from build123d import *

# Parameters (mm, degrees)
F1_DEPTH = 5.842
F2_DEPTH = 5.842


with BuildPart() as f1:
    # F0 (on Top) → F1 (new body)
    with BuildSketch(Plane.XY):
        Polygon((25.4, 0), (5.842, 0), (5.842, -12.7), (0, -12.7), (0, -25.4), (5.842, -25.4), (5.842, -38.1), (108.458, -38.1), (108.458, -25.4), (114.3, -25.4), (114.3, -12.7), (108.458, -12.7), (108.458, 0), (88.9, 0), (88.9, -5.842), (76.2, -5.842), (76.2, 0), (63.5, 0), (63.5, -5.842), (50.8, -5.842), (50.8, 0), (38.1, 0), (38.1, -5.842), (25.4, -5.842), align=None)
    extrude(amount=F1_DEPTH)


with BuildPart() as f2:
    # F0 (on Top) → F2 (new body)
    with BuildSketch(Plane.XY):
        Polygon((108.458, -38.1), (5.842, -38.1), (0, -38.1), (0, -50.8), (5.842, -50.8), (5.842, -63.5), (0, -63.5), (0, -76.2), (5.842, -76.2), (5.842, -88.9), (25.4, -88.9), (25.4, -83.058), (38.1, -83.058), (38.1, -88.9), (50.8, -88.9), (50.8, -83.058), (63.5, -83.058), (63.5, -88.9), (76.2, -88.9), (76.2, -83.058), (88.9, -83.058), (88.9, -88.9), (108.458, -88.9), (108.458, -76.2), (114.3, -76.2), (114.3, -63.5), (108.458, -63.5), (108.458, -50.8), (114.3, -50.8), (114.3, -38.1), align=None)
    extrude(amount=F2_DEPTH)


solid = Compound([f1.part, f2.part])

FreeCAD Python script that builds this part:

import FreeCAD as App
import Part
import Sketcher

V = App.Vector
Q = App.Units.Quantity

doc = App.newDocument("Part")
body = doc.addObject("PartDesign::Body", "Body")

sketch1 = body.newObject("Sketcher::SketchObject", "Sketch")
sketch1.AttachmentSupport = (doc.getObject("XY_Plane"), [""])
sketch1.MapMode = "FlatFace"
sketch1.addGeometry([
    Part.LineSegment(V(25, 0, 0), V(6, 0, 0)),
    Part.LineSegment(V(6, 0, 0), V(6, -13, 0)),
    Part.LineSegment(V(6, -13, 0), V(0, -13, 0)),
    Part.LineSegment(V(0, -13, 0), V(0, -25, 0)),
    Part.LineSegment(V(0, -25, 0), V(6, -25, 0)),
    Part.LineSegment(V(6, -25, 0), V(6, -38, 0)),
    Part.LineSegment(V(6, -38, 0), V(108, -38, 0)),
    Part.LineSegment(V(108, -38, 0), V(108, -25, 0)),
    Part.LineSegment(V(108, -25, 0), V(114, -25, 0)),
    Part.LineSegment(V(114, -25, 0), V(114, -13, 0)),
    Part.LineSegment(V(114, -13, 0), V(108, -13, 0)),
    Part.LineSegment(V(108, -13, 0), V(108, 0, 0)),
    Part.LineSegment(V(108, 0, 0), V(89, 0, 0)),
    Part.LineSegment(V(89, 0, 0), V(89, -6, 0)),
    Part.LineSegment(V(89, -6, 0), V(76, -6, 0)),
    Part.LineSegment(V(76, -6, 0), V(76, 0, 0)),
    Part.LineSegment(V(76, 0, 0), V(64, 0, 0)),
    Part.LineSegment(V(64, 0, 0), V(64, -6, 0)),
    Part.LineSegment(V(64, -6, 0), V(51, -6, 0)),
    Part.LineSegment(V(51, -6, 0), V(51, 0, 0)),
    Part.LineSegment(V(51, 0, 0), V(38, 0, 0)),
    Part.LineSegment(V(38, 0, 0), V(38, -6, 0)),
    Part.LineSegment(V(38, -6, 0), V(25, -6, 0)),
    Part.LineSegment(V(25, -6, 0), V(25, 0, 0)),
], False)
sketch1.addConstraint([
    Sketcher.Constraint("Coincident", 0, 2, 1, 1),
    Sketcher.Constraint("Coincident", 1, 2, 2, 1),
    Sketcher.Constraint("Coincident", 2, 2, 3, 1),
    Sketcher.Constraint("Coincident", 3, 2, 4, 1),
    Sketcher.Constraint("Coincident", 4, 2, 5, 1),
    Sketcher.Constraint("Coincident", 5, 2, 6, 1),
    Sketcher.Constraint("Coincident", 6, 2, 7, 1),
    Sketcher.Constraint("Coincident", 7, 2, 8, 1),
    Sketcher.Constraint("Coincident", 8, 2, 9, 1),
    Sketcher.Constraint("Coincident", 9, 2, 10, 1),
    Sketcher.Constraint("Coincident", 10, 2, 11, 1),
    Sketcher.Constraint("Coincident", 11, 2, 12, 1),
    Sketcher.Constraint("Coincident", 12, 2, 13, 1),
    Sketcher.Constraint("Coincident", 13, 2, 14, 1),
    Sketcher.Constraint("Coincident", 14, 2, 15, 1),
    Sketcher.Constraint("Coincident", 15, 2, 16, 1),
    Sketcher.Constraint("Coincident", 16, 2, 17, 1),
    Sketcher.Constraint("Coincident", 17, 2, 18, 1),
    Sketcher.Constraint("Coincident", 18, 2, 19, 1),
    Sketcher.Constraint("Coincident", 19, 2, 20, 1),
    Sketcher.Constraint("Coincident", 20, 2, 21, 1),
    Sketcher.Constraint("Coincident", 21, 2, 22, 1),
    Sketcher.Constraint("Coincident", 22, 2, 23, 1),
    Sketcher.Constraint("Coincident", 23, 2, 0, 1),
    Sketcher.Constraint("Horizontal", 0),
    Sketcher.Constraint("Vertical", 1),
    Sketcher.Constraint("Horizontal", 2),
    Sketcher.Constraint("Vertical", 3),
    Sketcher.Constraint("Horizontal", 4),
    Sketcher.Constraint("Vertical", 5),
    Sketcher.Constraint("Horizontal", 6),
    Sketcher.Constraint("Vertical", 7),
    Sketcher.Constraint("Horizontal", 8),
    Sketcher.Constraint("Vertical", 9),
    Sketcher.Constraint("Horizontal", 10),
    Sketcher.Constraint("Vertical", 11),
    Sketcher.Constraint("Horizontal", 12),
    Sketcher.Constraint("Vertical", 13),
    Sketcher.Constraint("Horizontal", 14),
    Sketcher.Constraint("Vertical", 15),
    Sketcher.Constraint("Horizontal", 16),
    Sketcher.Constraint("Vertical", 17),
    Sketcher.Constraint("Horizontal", 18),
    Sketcher.Constraint("Vertical", 19),
    Sketcher.Constraint("Horizontal", 20),
    Sketcher.Constraint("Vertical", 21),
    Sketcher.Constraint("Horizontal", 22),
    Sketcher.Constraint("Vertical", 23),
    Sketcher.Constraint("PointOnObject", 0, 2, -1),
    Sketcher.Constraint("PointOnObject", 2, 2, -2),
    Sketcher.Constraint("PointOnObject", 11, 2, -1),
    Sketcher.Constraint("PointOnObject", 15, 2, -1),
    Sketcher.Constraint("PointOnObject", 19, 2, -1),
    Sketcher.Constraint("Horizontal", 4, 2, 7, 2),
    Sketcher.Constraint("Horizontal", 2, 2, 9, 2),
    Sketcher.Constraint("Horizontal", 14, 2, 17, 2),
    Sketcher.Constraint("Horizontal", 18, 2, 21, 2),
    Sketcher.Constraint("Vertical", 1, 2, 4, 2),
    Sketcher.Constraint("Vertical", 7, 2, 10, 2),
    Sketcher.Constraint("Equal", 4, 8),
    Sketcher.Constraint("Equal", 0, 12),
    Sketcher.Constraint("Equal", 14, 16),
    Sketcher.Constraint("Equal", 16, 18),
    Sketcher.Constraint("Equal", 18, 20),
    Sketcher.Constraint("Equal", 20, 22),
    Sketcher.Constraint("Equal", 22, 1),
    Sketcher.Constraint("Equal", 1, 3),
    Sketcher.Constraint("Equal", 3, 5),
    Sketcher.Constraint("Equal", 10, 13),
    Sketcher.Constraint("DistanceX", 14, 2, 14, 1, Q("0.5 in")),
    Sketcher.Constraint("DistanceX", -1, 1, 14, 2, Q("3 in")),
    Sketcher.Constraint("DistanceX", 0, 2, 0, 1, Q("0.77 in")),
])
pad1 = body.newObject("PartDesign::Pad", "Pad")
pad1.Profile = sketch1
pad1.Length = Q("0.23 in")
body2 = doc.addObject("PartDesign::Body", "Body001")

sketch2 = body2.newObject("Sketcher::SketchObject", "Sketch001")
sketch2.AttachmentSupport = (doc.getObject("XY_Plane001"), [""])
sketch2.MapMode = "FlatFace"
sketch2.addGeometry([
    Part.LineSegment(V(0, -38, 0), V(0, -51, 0)),
    Part.LineSegment(V(0, -51, 0), V(6, -51, 0)),
    Part.LineSegment(V(6, -51, 0), V(6, -64, 0)),
    Part.LineSegment(V(6, -64, 0), V(0, -64, 0)),
    Part.LineSegment(V(0, -64, 0), V(0, -76, 0)),
    Part.LineSegment(V(0, -76, 0), V(6, -76, 0)),
    Part.LineSegment(V(6, -76, 0), V(6, -89, 0)),
    Part.LineSegment(V(6, -89, 0), V(25, -89, 0)),
    Part.LineSegment(V(25, -89, 0), V(25, -83, 0)),
    Part.LineSegment(V(25, -83, 0), V(38, -83, 0)),
    Part.LineSegment(V(38, -83, 0), V(38, -89, 0)),
    Part.LineSegment(V(38, -89, 0), V(51, -89, 0)),
    Part.LineSegment(V(51, -89, 0), V(51, -83, 0)),
    Part.LineSegment(V(51, -83, 0), V(64, -83, 0)),
    Part.LineSegment(V(64, -83, 0), V(64, -89, 0)),
    Part.LineSegment(V(64, -89, 0), V(76, -89, 0)),
    Part.LineSegment(V(76, -89, 0), V(76, -83, 0)),
    Part.LineSegment(V(76, -83, 0), V(89, -83, 0)),
    Part.LineSegment(V(89, -83, 0), V(89, -89, 0)),
    Part.LineSegment(V(89, -89, 0), V(108, -89, 0)),
    Part.LineSegment(V(108, -89, 0), V(108, -76, 0)),
    Part.LineSegment(V(108, -76, 0), V(114, -76, 0)),
    Part.LineSegment(V(114, -76, 0), V(114, -64, 0)),
    Part.LineSegment(V(114, -64, 0), V(108, -64, 0)),
    Part.LineSegment(V(108, -64, 0), V(108, -51, 0)),
    Part.LineSegment(V(108, -51, 0), V(114, -51, 0)),
    Part.LineSegment(V(114, -51, 0), V(114, -38, 0)),
    Part.LineSegment(V(114, -38, 0), V(0, -38, 0)),
], False)
sketch2.addConstraint([
    Sketcher.Constraint("Coincident", 0, 2, 1, 1),
    Sketcher.Constraint("Coincident", 1, 2, 2, 1),
    Sketcher.Constraint("Coincident", 2, 2, 3, 1),
    Sketcher.Constraint("Coincident", 3, 2, 4, 1),
    Sketcher.Constraint("Coincident", 4, 2, 5, 1),
    Sketcher.Constraint("Coincident", 5, 2, 6, 1),
    Sketcher.Constraint("Coincident", 6, 2, 7, 1),
    Sketcher.Constraint("Coincident", 7, 2, 8, 1),
    Sketcher.Constraint("Coincident", 8, 2, 9, 1),
    Sketcher.Constraint("Coincident", 9, 2, 10, 1),
    Sketcher.Constraint("Coincident", 10, 2, 11, 1),
    Sketcher.Constraint("Coincident", 11, 2, 12, 1),
    Sketcher.Constraint("Coincident", 12, 2, 13, 1),
    Sketcher.Constraint("Coincident", 13, 2, 14, 1),
    Sketcher.Constraint("Coincident", 14, 2, 15, 1),
    Sketcher.Constraint("Coincident", 15, 2, 16, 1),
    Sketcher.Constraint("Coincident", 16, 2, 17, 1),
    Sketcher.Constraint("Coincident", 17, 2, 18, 1),
    Sketcher.Constraint("Coincident", 18, 2, 19, 1),
    Sketcher.Constraint("Coincident", 19, 2, 20, 1),
    Sketcher.Constraint("Coincident", 20, 2, 21, 1),
    Sketcher.Constraint("Coincident", 21, 2, 22, 1),
    Sketcher.Constraint("Coincident", 22, 2, 23, 1),
    Sketcher.Constraint("Coincident", 23, 2, 24, 1),
    Sketcher.Constraint("Coincident", 24, 2, 25, 1),
    Sketcher.Constraint("Coincident", 25, 2, 26, 1),
    Sketcher.Constraint("Coincident", 26, 2, 27, 1),
    Sketcher.Constraint("Coincident", 27, 2, 0, 1),
    Sketcher.Constraint("Vertical", 0),
    Sketcher.Constraint("Horizontal", 1),
    Sketcher.Constraint("Vertical", 2),
    Sketcher.Constraint("Horizontal", 3),
    Sketcher.Constraint("Vertical", 4),
    Sketcher.Constraint("Horizontal", 5),
    Sketcher.Constraint("Vertical", 6),
    Sketcher.Constraint("Horizontal", 7),
    Sketcher.Constraint("Vertical", 8),
    Sketcher.Constraint("Horizontal", 9),
    Sketcher.Constraint("Vertical", 10),
    Sketcher.Constraint("Horizontal", 11),
    Sketcher.Constraint("Vertical", 12),
    Sketcher.Constraint("Horizontal", 13),
    Sketcher.Constraint("Vertical", 14),
    Sketcher.Constraint("Horizontal", 15),
    Sketcher.Constraint("Vertical", 16),
    Sketcher.Constraint("Horizontal", 17),
    Sketcher.Constraint("Vertical", 18),
    Sketcher.Constraint("Horizontal", 19),
    Sketcher.Constraint("Vertical", 20),
    Sketcher.Constraint("Horizontal", 21),
    Sketcher.Constraint("Vertical", 22),
    Sketcher.Constraint("Horizontal", 23),
    Sketcher.Constraint("Vertical", 24),
    Sketcher.Constraint("Horizontal", 25),
    Sketcher.Constraint("Vertical", 26),
    Sketcher.Constraint("Horizontal", 27),
    Sketcher.Constraint("PointOnObject", 0, 2, -2),
    Sketcher.Constraint("PointOnObject", 3, 2, -2),
    Sketcher.Constraint("Horizontal", 7, 2, 10, 2),
    Sketcher.Constraint("Horizontal", 9, 2, 12, 2),
    Sketcher.Constraint("Horizontal", 11, 2, 14, 2),
    Sketcher.Constraint("Horizontal", 13, 2, 16, 2),
    Sketcher.Constraint("Horizontal", 15, 2, 18, 2),
    Sketcher.Constraint("Horizontal", 5, 2, 20, 2),
    Sketcher.Constraint("Horizontal", 3, 2, 22, 2),
    Sketcher.Constraint("Horizontal", 1, 2, 24, 2),
    Sketcher.Constraint("Vertical", 2, 2, 5, 2),
    Sketcher.Constraint("Vertical", 20, 2, 23, 2),
    Sketcher.Constraint("Vertical", 22, 2, 25, 2),
    Sketcher.Constraint("Equal", 9, 11),
    Sketcher.Constraint("Equal", 11, 13),
    Sketcher.Constraint("Equal", 13, 15),
    Sketcher.Constraint("Equal", 15, 17),
    Sketcher.Constraint("Equal", 7, 19),
    Sketcher.Constraint("Equal", 5, 21),
    Sketcher.Constraint("Equal", 17, 0),
    Sketcher.Constraint("Equal", 0, 2),
    Sketcher.Constraint("Equal", 2, 4),
    Sketcher.Constraint("Equal", 4, 6),
    Sketcher.Constraint("Equal", 25, 8),
    Sketcher.Constraint("DistanceX", 9, 1, 9, 2, Q("0.5 in")),
    Sketcher.Constraint("DistanceX", 27, 2, 27, 1, Q("4.5 in")),
    Sketcher.Constraint("DistanceY", 0, 2, -1, 1, Q("2 in")),
    Sketcher.Constraint("DistanceX", 1, 1, 1, 2, Q("0.23 in")),
])
pad2 = body2.newObject("PartDesign::Pad", "Pad001")
pad2.Profile = sketch2
pad2.Length = Q("0.23 in")

doc.recompute()
